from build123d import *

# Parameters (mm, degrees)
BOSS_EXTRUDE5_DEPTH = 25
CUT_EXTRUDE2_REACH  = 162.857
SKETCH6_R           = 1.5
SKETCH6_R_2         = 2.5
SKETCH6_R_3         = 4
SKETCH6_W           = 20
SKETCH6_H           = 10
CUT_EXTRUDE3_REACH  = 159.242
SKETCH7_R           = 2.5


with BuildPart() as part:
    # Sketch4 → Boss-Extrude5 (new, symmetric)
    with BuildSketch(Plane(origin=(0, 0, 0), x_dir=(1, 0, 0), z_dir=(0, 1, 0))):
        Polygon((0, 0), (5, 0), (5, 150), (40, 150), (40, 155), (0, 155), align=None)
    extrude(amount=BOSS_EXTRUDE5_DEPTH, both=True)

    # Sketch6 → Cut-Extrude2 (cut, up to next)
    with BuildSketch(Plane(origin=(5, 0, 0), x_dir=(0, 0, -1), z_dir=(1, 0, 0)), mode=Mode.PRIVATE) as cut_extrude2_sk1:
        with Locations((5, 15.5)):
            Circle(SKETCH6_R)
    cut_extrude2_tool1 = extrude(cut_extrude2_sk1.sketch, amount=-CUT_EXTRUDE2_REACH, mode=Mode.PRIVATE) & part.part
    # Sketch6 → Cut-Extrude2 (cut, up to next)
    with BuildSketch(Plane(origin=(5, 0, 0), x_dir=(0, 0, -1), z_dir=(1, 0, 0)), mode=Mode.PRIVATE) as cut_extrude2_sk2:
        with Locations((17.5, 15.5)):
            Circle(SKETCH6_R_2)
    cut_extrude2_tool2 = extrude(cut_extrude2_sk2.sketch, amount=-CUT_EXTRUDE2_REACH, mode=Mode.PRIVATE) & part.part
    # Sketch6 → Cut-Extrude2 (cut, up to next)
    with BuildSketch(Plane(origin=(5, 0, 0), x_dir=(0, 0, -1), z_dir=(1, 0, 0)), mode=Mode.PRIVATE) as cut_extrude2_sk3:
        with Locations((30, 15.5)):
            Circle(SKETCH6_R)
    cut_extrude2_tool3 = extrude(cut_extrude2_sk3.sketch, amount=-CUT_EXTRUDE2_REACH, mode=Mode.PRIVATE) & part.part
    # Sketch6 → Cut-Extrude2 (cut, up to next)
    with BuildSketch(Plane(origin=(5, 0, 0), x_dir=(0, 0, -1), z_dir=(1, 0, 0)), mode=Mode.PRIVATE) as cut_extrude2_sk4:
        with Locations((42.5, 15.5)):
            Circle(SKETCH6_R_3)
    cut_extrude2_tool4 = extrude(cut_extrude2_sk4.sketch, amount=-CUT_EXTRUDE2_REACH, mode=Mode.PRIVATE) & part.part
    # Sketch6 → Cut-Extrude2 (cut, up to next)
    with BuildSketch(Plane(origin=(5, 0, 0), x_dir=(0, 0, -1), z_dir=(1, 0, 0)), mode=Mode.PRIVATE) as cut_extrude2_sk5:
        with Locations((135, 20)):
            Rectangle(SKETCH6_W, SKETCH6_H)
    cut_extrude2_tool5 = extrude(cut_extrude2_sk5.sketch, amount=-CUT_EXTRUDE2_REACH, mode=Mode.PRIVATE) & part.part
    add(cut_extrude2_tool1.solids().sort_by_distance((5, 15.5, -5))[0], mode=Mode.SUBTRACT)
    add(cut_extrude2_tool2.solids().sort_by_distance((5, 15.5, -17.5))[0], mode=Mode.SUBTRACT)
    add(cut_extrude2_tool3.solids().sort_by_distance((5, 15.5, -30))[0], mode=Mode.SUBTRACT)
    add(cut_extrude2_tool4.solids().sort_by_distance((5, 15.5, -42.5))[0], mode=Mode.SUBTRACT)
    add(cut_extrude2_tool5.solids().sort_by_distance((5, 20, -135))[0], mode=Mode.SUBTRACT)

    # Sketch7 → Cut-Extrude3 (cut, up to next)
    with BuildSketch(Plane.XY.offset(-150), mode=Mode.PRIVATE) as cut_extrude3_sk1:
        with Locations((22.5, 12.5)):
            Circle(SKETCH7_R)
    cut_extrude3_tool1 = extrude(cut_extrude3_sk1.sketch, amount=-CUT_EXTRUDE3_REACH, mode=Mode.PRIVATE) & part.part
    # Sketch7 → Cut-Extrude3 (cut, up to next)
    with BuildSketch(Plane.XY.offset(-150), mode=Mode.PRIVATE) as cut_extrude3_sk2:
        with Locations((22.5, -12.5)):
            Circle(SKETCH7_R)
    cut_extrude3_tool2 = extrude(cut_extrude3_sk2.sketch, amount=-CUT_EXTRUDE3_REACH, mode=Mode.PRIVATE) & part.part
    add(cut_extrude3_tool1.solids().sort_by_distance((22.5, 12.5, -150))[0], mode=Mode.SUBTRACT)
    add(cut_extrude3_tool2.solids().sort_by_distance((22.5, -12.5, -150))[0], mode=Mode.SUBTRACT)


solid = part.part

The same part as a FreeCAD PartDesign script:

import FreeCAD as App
import Part
import Sketcher


def add_polygon(sketch, points):
    """Adds a closed chain of lines whose ends are joined by coincident constraints."""
    first, n = sketch.GeometryCount, len(points)
    for a, b in zip(points, points[1:] + points[:1]):
        sketch.addGeometry(Part.LineSegment(App.Vector(*a, 0), App.Vector(*b, 0)), False)
    for i in range(n):
        sketch.addConstraint(Sketcher.Constraint("Coincident", first + i, 2, first + (i + 1) % n, 1))

doc = App.newDocument("Part")
body = doc.addObject("PartDesign::Body", "Body")

# Sketch on XZ plane
sketch1 = doc.addObject("Sketcher::SketchObject", "Sketch")
body.addObject(sketch1)
sketch1.AttachmentSupport = (doc.XZ_Plane, [""])
sketch1.MapMode = "FlatFace"
add_polygon(sketch1, [(0, 0), (5, 0), (5, -150), (40, -150), (40, -155), (0, -155)])  # lines 0-5
sketch1.addConstraint(Sketcher.Constraint("Horizontal", 0))
sketch1.addConstraint(Sketcher.Constraint("Vertical", 1))
sketch1.addConstraint(Sketcher.Constraint("Horizontal", 2))
sketch1.addConstraint(Sketcher.Constraint("Vertical", 3))
sketch1.addConstraint(Sketcher.Constraint("Horizontal", 4))
sketch1.addConstraint(Sketcher.Constraint("Vertical", 5))
sketch1.addConstraint(Sketcher.Constraint("Coincident", 5, 2, -1, 1))
sketch1.addConstraint(Sketcher.Constraint("Equal", 0, 3))
sketch1.addConstraint(Sketcher.Constraint("DistanceX", 0, 1, 0, 2, 5.0))
sketch1.addConstraint(Sketcher.Constraint("DistanceX", 2, 1, 2, 2, 35.0))
sketch1.addConstraint(Sketcher.Constraint("DistanceY", 1, 2, 1, 1, 150.0))
pad1 = doc.addObject("PartDesign::Pad", "Pad")
body.addObject(pad1)
pad1.Profile = sketch1
pad1.Length = 50
pad1.Midplane = True

# Sketch on YZ plane
sketch2 = doc.addObject("Sketcher::SketchObject", "Sketch001")
body.addObject(sketch2)
sketch2.AttachmentSupport = (doc.YZ_Plane, [""])
sketch2.MapMode = "FlatFace"
sketch2.AttachmentOffset = App.Placement(App.Vector(0, 0, 5), App.Rotation())
sketch2.addGeometry(Part.Circle(App.Vector(15.5, -5, 0), App.Vector(0, 0, 1), 1.5), False)
sketch2.addConstraint(Sketcher.Constraint("Diameter", 0, 3.0))
sketch2.addConstraint(Sketcher.Constraint("DistanceY", 0, 3, -1, 1, 5.0))
sketch2.addConstraint(Sketcher.Constraint("DistanceX", -1, 1, 0, 3, 15.5))
pocket1 = doc.addObject("PartDesign::Pocket", "Pocket")
body.addObject(pocket1)
pocket1.Profile = sketch2
pocket1.Type = "UpToFirst"

# Sketch on YZ plane
sketch3 = doc.addObject("Sketcher::SketchObject", "Sketch002")
body.addObject(sketch3)
sketch3.AttachmentSupport = (doc.YZ_Plane, [""])
sketch3.MapMode = "FlatFace"
sketch3.AttachmentOffset = App.Placement(App.Vector(0, 0, 5), App.Rotation())
sketch3.addGeometry(Part.Circle(App.Vector(15.5, -17.5, 0), App.Vector(0, 0, 1), 2.5), False)
sketch3.addConstraint(Sketcher.Constraint("Diameter", 0, 5.0))
sketch3.addConstraint(Sketcher.Constraint("DistanceX", -1, 1, 0, 3, 15.5))
sketch3.addConstraint(Sketcher.Constraint("DistanceY", 0, 3, -1, 1, 17.5))
pocket2 = doc.addObject("PartDesign::Pocket", "Pocket001")
body.addObject(pocket2)
pocket2.Profile = sketch3
pocket2.Type = "UpToFirst"

# Sketch on YZ plane
sketch4 = doc.addObject("Sketcher::SketchObject", "Sketch003")
body.addObject(sketch4)
sketch4.AttachmentSupport = (doc.YZ_Plane, [""])
sketch4.MapMode = "FlatFace"
sketch4.AttachmentOffset = App.Placement(App.Vector(0, 0, 5), App.Rotation())
sketch4.addGeometry(Part.Circle(App.Vector(15.5, -30, 0), App.Vector(0, 0, 1), 1.5), False)
sketch4.addConstraint(Sketcher.Constraint("Diameter", 0, 3.0))
sketch4.addConstraint(Sketcher.Constraint("DistanceY", 0, 3, -1, 1, 30.0))
sketch4.addConstraint(Sketcher.Constraint("DistanceX", -1, 1, 0, 3, 15.5))
pocket3 = doc.addObject("PartDesign::Pocket", "Pocket002")
body.addObject(pocket3)
pocket3.Profile = sketch4
pocket3.Type = "UpToFirst"

# Sketch on YZ plane
sketch5 = doc.addObject("Sketcher::SketchObject", "Sketch004")
body.addObject(sketch5)
sketch5.AttachmentSupport = (doc.YZ_Plane, [""])
sketch5.MapMode = "FlatFace"
sketch5.AttachmentOffset = App.Placement(App.Vector(0, 0, 5), App.Rotation())
sketch5.addGeometry(Part.Circle(App.Vector(15.5, -42.5, 0), App.Vector(0, 0, 1), 4), False)
sketch5.addConstraint(Sketcher.Constraint("Diameter", 0, 8.0))
sketch5.addConstraint(Sketcher.Constraint("DistanceX", -1, 1, 0, 3, 15.5))
sketch5.addConstraint(Sketcher.Constraint("DistanceY", 0, 3, -1, 1, 42.5))
pocket4 = doc.addObject("PartDesign::Pocket", "Pocket003")
body.addObject(pocket4)
pocket4.Profile = sketch5
pocket4.Type = "UpToFirst"

# Sketch on YZ plane
sketch6 = doc.addObject("Sketcher::SketchObject", "Sketch005")
body.addObject(sketch6)
sketch6.AttachmentSupport = (doc.YZ_Plane, [""])
sketch6.MapMode = "FlatFace"
sketch6.AttachmentOffset = App.Placement(App.Vector(0, 0, 5), App.Rotation())
add_polygon(sketch6, [(25, -125), (15, -125), (15, -145), (25, -145)])  # lines 0-3
sketch6.addConstraint(Sketcher.Constraint("Horizontal", 0))
sketch6.addConstraint(Sketcher.Constraint("Vertical", 1))
sketch6.addConstraint(Sketcher.Constraint("Horizontal", 2))
sketch6.addConstraint(Sketcher.Constraint("Vertical", 3))
sketch6.addConstraint(Sketcher.Constraint("DistanceX", 0, 2, 0, 1, 10.0))
sketch6.addConstraint(Sketcher.Constraint("DistanceY", 1, 2, 1, 1, 20.0))
sketch6.addConstraint(Sketcher.Constraint("DistanceX", -1, 1, 0, 2, 15.0))
sketch6.addConstraint(Sketcher.Constraint("DistanceY", 0, 2, -1, 1, 125.0))
pocket5 = doc.addObject("PartDesign::Pocket", "Pocket004")
body.addObject(pocket5)
pocket5.Profile = sketch6
pocket5.Type = "UpToFirst"

# Sketch on XY plane
sketch7 = doc.addObject("Sketcher::SketchObject", "Sketch006")
body.addObject(sketch7)
sketch7.AttachmentSupport = (doc.XY_Plane, [""])
sketch7.MapMode = "FlatFace"
sketch7.AttachmentOffset = App.Placement(App.Vector(0, 0, -150), App.Rotation())
sketch7.addGeometry(Part.Circle(App.Vector(22.5, 12.5, 0), App.Vector(0, 0, 1), 2.5), False)
sketch7.addConstraint(Sketcher.Constraint("Diameter", 0, 5.0))
sketch7.addConstraint(Sketcher.Constraint("DistanceX", -1, 1, 0, 3, 22.5))
sketch7.addConstraint(Sketcher.Constraint("DistanceY", -1, 1, 0, 3, 12.5))
pocket6 = doc.addObject("PartDesign::Pocket", "Pocket005")
body.addObject(pocket6)
pocket6.Profile = sketch7
pocket6.Type = "UpToFirst"

# Sketch on XY plane
sketch8 = doc.addObject("Sketcher::SketchObject", "Sketch007")
body.addObject(sketch8)
sketch8.AttachmentSupport = (doc.XY_Plane, [""])
sketch8.MapMode = "FlatFace"
sketch8.AttachmentOffset = App.Placement(App.Vector(0, 0, -150), App.Rotation())
sketch8.addGeometry(Part.Circle(App.Vector(22.5, -12.5, 0), App.Vector(0, 0, 1), 2.5), False)
sketch8.addConstraint(Sketcher.Constraint("Diameter", 0, 5.0))
sketch8.addConstraint(Sketcher.Constraint("DistanceX", -1, 1, 0, 3, 22.5))
sketch8.addConstraint(Sketcher.Constraint("DistanceY", 0, 3, -1, 1, 12.5))
pocket7 = doc.addObject("PartDesign::Pocket", "Pocket006")
body.addObject(pocket7)
pocket7.Profile = sketch8
pocket7.Type = "UpToFirst"

doc.recompute()
